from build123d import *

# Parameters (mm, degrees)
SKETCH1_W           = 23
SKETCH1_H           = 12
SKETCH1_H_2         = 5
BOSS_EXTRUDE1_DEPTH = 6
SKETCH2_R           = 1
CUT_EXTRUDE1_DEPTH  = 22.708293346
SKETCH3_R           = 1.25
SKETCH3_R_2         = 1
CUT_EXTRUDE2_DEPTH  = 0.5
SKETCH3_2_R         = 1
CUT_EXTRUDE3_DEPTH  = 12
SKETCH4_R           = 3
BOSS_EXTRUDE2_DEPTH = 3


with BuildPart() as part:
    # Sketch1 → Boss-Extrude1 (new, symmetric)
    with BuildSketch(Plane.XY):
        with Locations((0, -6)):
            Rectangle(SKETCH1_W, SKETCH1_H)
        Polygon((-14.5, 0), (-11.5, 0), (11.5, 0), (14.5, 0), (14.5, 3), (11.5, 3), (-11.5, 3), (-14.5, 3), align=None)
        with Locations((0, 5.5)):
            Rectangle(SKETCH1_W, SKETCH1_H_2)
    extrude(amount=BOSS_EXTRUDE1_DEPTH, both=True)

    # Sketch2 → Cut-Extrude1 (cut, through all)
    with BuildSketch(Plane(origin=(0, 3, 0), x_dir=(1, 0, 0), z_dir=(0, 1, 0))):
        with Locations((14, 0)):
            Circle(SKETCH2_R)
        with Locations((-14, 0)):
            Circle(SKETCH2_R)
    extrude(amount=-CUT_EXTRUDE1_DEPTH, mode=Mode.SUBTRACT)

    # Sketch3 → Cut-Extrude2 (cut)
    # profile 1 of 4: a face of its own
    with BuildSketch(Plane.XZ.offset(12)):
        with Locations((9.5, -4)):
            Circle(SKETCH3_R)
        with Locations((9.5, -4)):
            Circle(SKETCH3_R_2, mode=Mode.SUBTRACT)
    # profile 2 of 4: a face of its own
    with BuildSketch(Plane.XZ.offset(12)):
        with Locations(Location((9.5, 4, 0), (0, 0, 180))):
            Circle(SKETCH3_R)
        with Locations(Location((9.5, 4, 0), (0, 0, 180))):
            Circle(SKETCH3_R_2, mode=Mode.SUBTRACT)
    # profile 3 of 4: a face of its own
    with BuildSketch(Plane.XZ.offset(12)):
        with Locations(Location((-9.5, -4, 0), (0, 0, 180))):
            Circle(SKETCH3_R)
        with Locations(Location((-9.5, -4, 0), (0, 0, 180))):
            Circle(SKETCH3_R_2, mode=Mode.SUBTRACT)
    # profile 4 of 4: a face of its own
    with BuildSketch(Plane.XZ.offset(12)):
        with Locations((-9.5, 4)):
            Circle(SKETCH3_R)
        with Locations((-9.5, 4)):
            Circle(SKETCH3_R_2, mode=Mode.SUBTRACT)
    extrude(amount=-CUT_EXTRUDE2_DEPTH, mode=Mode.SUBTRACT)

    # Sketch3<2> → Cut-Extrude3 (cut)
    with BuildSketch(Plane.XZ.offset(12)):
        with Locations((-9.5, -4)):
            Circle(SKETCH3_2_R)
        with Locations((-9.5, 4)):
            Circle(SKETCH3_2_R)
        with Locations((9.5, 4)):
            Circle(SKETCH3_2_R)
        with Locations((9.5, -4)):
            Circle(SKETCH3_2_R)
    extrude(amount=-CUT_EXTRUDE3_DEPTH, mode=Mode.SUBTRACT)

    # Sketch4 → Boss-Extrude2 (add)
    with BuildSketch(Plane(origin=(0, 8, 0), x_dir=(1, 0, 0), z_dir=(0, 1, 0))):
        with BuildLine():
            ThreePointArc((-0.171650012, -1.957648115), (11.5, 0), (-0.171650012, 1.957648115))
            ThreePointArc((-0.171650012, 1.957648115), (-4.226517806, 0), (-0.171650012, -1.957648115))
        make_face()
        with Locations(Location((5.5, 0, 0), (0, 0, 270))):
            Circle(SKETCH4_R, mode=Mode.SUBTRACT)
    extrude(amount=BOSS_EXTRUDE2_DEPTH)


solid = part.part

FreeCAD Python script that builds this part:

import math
import FreeCAD as App
import Part
import Sketcher

V = App.Vector

doc = App.newDocument("Part")
body = doc.addObject("PartDesign::Body", "Body")

sketch1 = body.newObject("Sketcher::SketchObject", "Sketch")
sketch1.AttachmentSupport = (doc.getObject("XY_Plane"), [""])
sketch1.MapMode = "FlatFace"
sketch1.addGeometry(Part.LineSegment(V(-11.5, 0, 0), V(-11.5, -12, 0)), False)
sketch1.addGeometry(Part.LineSegment(V(-11.5, -12, 0), V(11.5, -12, 0)), False)
sketch1.addGeometry(Part.LineSegment(V(11.5, -12, 0), V(11.5, 0, 0)), False)
sketch1.addGeometry(Part.LineSegment(V(11.5, 0, 0), V(14.5, 0, 0)), False)
sketch1.addGeometry(Part.LineSegment(V(14.5, 0, 0), V(14.5, 3, 0)), False)
sketch1.addGeometry(Part.LineSegment(V(14.5, 3, 0), V(11.5, 3, 0)), False)
sketch1.addGeometry(Part.LineSegment(V(11.5, 3, 0), V(11.5, 8, 0)), False)
sketch1.addGeometry(Part.LineSegment(V(11.5, 8, 0), V(-11.5, 8, 0)), False)
sketch1.addGeometry(Part.LineSegment(V(-11.5, 8, 0), V(-11.5, 3, 0)), False)
sketch1.addGeometry(Part.LineSegment(V(-11.5, 3, 0), V(-14.5, 3, 0)), False)
sketch1.addGeometry(Part.LineSegment(V(-14.5, 3, 0), V(-14.5, 0, 0)), False)
sketch1.addGeometry(Part.LineSegment(V(-14.5, 0, 0), V(-11.5, 0, 0)), False)
sketch1.addConstraint(Sketcher.Constraint("Coincident", 0, 2, 1, 1))
sketch1.addConstraint(Sketcher.Constraint("Coincident", 1, 2, 2, 1))
sketch1.addConstraint(Sketcher.Constraint("Coincident", 2, 2, 3, 1))
sketch1.addConstraint(Sketcher.Constraint("Coincident", 3, 2, 4, 1))
sketch1.addConstraint(Sketcher.Constraint("Coincident", 4, 2, 5, 1))
sketch1.addConstraint(Sketcher.Constraint("Coincident", 5, 2, 6, 1))
sketch1.addConstraint(Sketcher.Constraint("Coincident", 6, 2, 7, 1))
sketch1.addConstraint(Sketcher.Constraint("Coincident", 7, 2, 8, 1))
sketch1.addConstraint(Sketcher.Constraint("Coincident", 8, 2, 9, 1))
sketch1.addConstraint(Sketcher.Constraint("Coincident", 9, 2, 10, 1))
sketch1.addConstraint(Sketcher.Constraint("Coincident", 10, 2, 11, 1))
sketch1.addConstraint(Sketcher.Constraint("Coincident", 11, 2, 0, 1))
sketch1.addConstraint(Sketcher.Constraint("Vertical", 0))
sketch1.addConstraint(Sketcher.Constraint("Horizontal", 1))
sketch1.addConstraint(Sketcher.Constraint("Vertical", 2))
sketch1.addConstraint(Sketcher.Constraint("Horizontal", 3))
sketch1.addConstraint(Sketcher.Constraint("Vertical", 4))
sketch1.addConstraint(Sketcher.Constraint("Horizontal", 5))
sketch1.addConstraint(Sketcher.Constraint("Vertical", 6))
sketch1.addConstraint(Sketcher.Constraint("Horizontal", 7))
sketch1.addConstraint(Sketcher.Constraint("Vertical", 8))
sketch1.addConstraint(Sketcher.Constraint("Horizontal", 9))
sketch1.addConstraint(Sketcher.Constraint("Vertical", 10))
sketch1.addConstraint(Sketcher.Constraint("Horizontal", 11))
sketch1.addConstraint(Sketcher.Constraint("Symmetric", 3, 2, 10, 2, -1, 1))
sketch1.addConstraint(Sketcher.Constraint("Symmetric", 5, 2, 8, 2, -2))
sketch1.addConstraint(Sketcher.Constraint("Symmetric", 2, 2, 11, 2, -2))
sketch1.addConstraint(Sketcher.Constraint("Vertical", 2, 2, 5, 2))
sketch1.addConstraint(Sketcher.Constraint("Equal", 11, 4))
sketch1.addConstraint(Sketcher.Constraint("DistanceX", 1, 1, 1, 2, 23.0))
sketch1.addConstraint(Sketcher.Constraint("DistanceX", 3, 1, 3, 2, 3.0))
sketch1.addConstraint(Sketcher.Constraint("DistanceY", 0, 2, 0, 1, 12.0))
sketch1.addConstraint(Sketcher.Constraint("DistanceY", 6, 1, 6, 2, 5.0))
pad1 = body.newObject("PartDesign::Pad", "Pad")
pad1.Profile = sketch1
pad1.Length = 12
pad1.Midplane = True

sketch2 = body.newObject("Sketcher::SketchObject", "Sketch001")
sketch2.AttachmentSupport = (doc.getObject("XZ_Plane"), [""])
sketch2.MapMode = "FlatFace"
sketch2.AttachmentOffset = App.Placement(V(0, 0, -3), App.Rotation())
sketch2.addGeometry(Part.Circle(V(14, 0, 0), V(0, 0, 1), 1), False)
sketch2.addGeometry(Part.Circle(V(-14, 0, 0), V(0, 0, 1), 1), False)
sketch2.addConstraint(Sketcher.Constraint("Equal", 0, 1))
sketch2.addConstraint(Sketcher.Constraint("Symmetric", 0, 3, 1, 3, -1, 1))
sketch2.addConstraint(Sketcher.Constraint("PointOnObject", 0, 3, -1))
sketch2.addConstraint(Sketcher.Constraint("Diameter", 0, 2.0))
sketch2.addConstraint(Sketcher.Constraint("DistanceX", -1, 1, 0, 3, 14.0))
pocket1 = body.newObject("PartDesign::Pocket", "Pocket")
pocket1.Profile = sketch2
pocket1.Type = "ThroughAll"
pocket1.Reversed = True

sketch3 = body.newObject("Sketcher::SketchObject", "Sketch002")
sketch3.AttachmentSupport = (doc.getObject("XZ_Plane"), [""])
sketch3.MapMode = "FlatFace"
sketch3.AttachmentOffset = App.Placement(V(0, 0, 12), App.Rotation())
sketch3.addGeometry(Part.Circle(V(9.5, -4, 0), V(0, 0, 1), 1.2), False)
sketch3.addGeometry(Part.Circle(V(9.5, -4, 0), V(0, 0, 1), 1), False)
sketch3.addGeometry(Part.Circle(V(9.5, 4, 0), V(0, 0, 1), 1.2), False)
sketch3.addGeometry(Part.Circle(V(9.5, 4, 0), V(0, 0, 1), 1), False)
sketch3.addGeometry(Part.Circle(V(-9.5, -4, 0), V(0, 0, 1), 1.2), False)
sketch3.addGeometry(Part.Circle(V(-9.5, -4, 0), V(0, 0, 1), 1), False)
sketch3.addGeometry(Part.Circle(V(-9.5, 4, 0), V(0, 0, 1), 1.2), False)
sketch3.addGeometry(Part.Circle(V(-9.5, 4, 0), V(0, 0, 1), 1), False)
sketch3.addConstraint(Sketcher.Constraint("Coincident", 1, 3, 0, 3))
sketch3.addConstraint(Sketcher.Constraint("Coincident", 3, 3, 2, 3))
sketch3.addConstraint(Sketcher.Constraint("Coincident", 5, 3, 4, 3))
sketch3.addConstraint(Sketcher.Constraint("Coincident", 7, 3, 6, 3))
sketch3.addConstraint(Sketcher.Constraint("Equal", 0, 2))
sketch3.addConstraint(Sketcher.Constraint("Equal", 1, 3))
sketch3.addConstraint(Sketcher.Constraint("Equal", 2, 4))
sketch3.addConstraint(Sketcher.Constraint("Equal", 3, 5))
sketch3.addConstraint(Sketcher.Constraint("Equal", 4, 6))
sketch3.addConstraint(Sketcher.Constraint("Equal", 5, 7))
sketch3.addConstraint(Sketcher.Constraint("Symmetric", 2, 3, 4, 3, -1, 1))
sketch3.addConstraint(Sketcher.Constraint("Symmetric", 0, 3, 6, 3, -1, 1))
sketch3.addConstraint(Sketcher.Constraint("Symmetric", 0, 3, 4, 3, -2))
sketch3.addConstraint(Sketcher.Constraint("Diameter", 1, 2.0))
sketch3.addConstraint(Sketcher.Constraint("Diameter", 0, 2.5))
sketch3.addConstraint(Sketcher.Constraint("DistanceY", 0, 3, -1, 1, 4.0))
sketch3.addConstraint(Sketcher.Constraint("DistanceX", 4, 3, 0, 3, 19.0))
pocket2 = body.newObject("PartDesign::Pocket", "Pocket001")
pocket2.Profile = sketch3
pocket2.Length = 0.5

sketch4 = body.newObject("Sketcher::SketchObject", "Sketch003")
sketch4.AttachmentSupport = (doc.getObject("XZ_Plane"), [""])
sketch4.MapMode = "FlatFace"
sketch4.AttachmentOffset = App.Placement(V(0, 0, 12), App.Rotation())
sketch4.addGeometry(Part.Circle(V(-9.5, -4, 0), V(0, 0, 1), 1), False)
sketch4.addGeometry(Part.Circle(V(-9.5, 4, 0), V(0, 0, 1), 1), False)
sketch4.addGeometry(Part.Circle(V(9.5, 4, 0), V(0, 0, 1), 1), False)
sketch4.addGeometry(Part.Circle(V(9.5, -4, 0), V(0, 0, 1), 1), False)
sketch4.addConstraint(Sketcher.Constraint("Equal", 0, 1))
sketch4.addConstraint(Sketcher.Constraint("Equal", 1, 2))
sketch4.addConstraint(Sketcher.Constraint("Equal", 2, 3))
sketch4.addConstraint(Sketcher.Constraint("Symmetric", 0, 3, 2, 3, -1, 1))
sketch4.addConstraint(Sketcher.Constraint("Symmetric", 1, 3, 3, 3, -1, 1))
sketch4.addConstraint(Sketcher.Constraint("Symmetric", 1, 3, 2, 3, -2))
sketch4.addConstraint(Sketcher.Constraint("Diameter", 0, 2.0))
sketch4.addConstraint(Sketcher.Constraint("DistanceY", 0, 3, -1, 1, 4.0))
sketch4.addConstraint(Sketcher.Constraint("DistanceX", 1, 3, 2, 3, 19.0))
pocket3 = body.newObject("PartDesign::Pocket", "Pocket002")
pocket3.Profile = sketch4
pocket3.Length = 12

sketch5 = body.newObject("Sketcher::SketchObject", "Sketch004")
sketch5.AttachmentSupport = (doc.getObject("XZ_Plane"), [""])
sketch5.MapMode = "FlatFace"
sketch5.AttachmentOffset = App.Placement(V(0, 0, -8), App.Rotation())
sketch5.addGeometry(Part.ArcOfCircle(Part.Circle(V(5.5, 0, 0), V(0, 0, 1), 6), math.radians(-161), math.radians(161)), False)
sketch5.addGeometry(Part.ArcOfCircle(Part.Circle(V(-1.7, 0, 0), V(0, 0, 1), 2.5), math.radians(52), math.radians(308)), False)
sketch5.addGeometry(Part.Circle(V(5.5, 0, 0), V(0, 0, 1), 3), False)
sketch5.addConstraint(Sketcher.Constraint("Coincident", 0, 1, 1, 2))
sketch5.addConstraint(Sketcher.Constraint("Coincident", 1, 1, 0, 2))
sketch5.addConstraint(Sketcher.Constraint("Coincident", 2, 3, 0, 3))
sketch5.addConstraint(Sketcher.Constraint("Symmetric", 0, 1, 1, 1, -1))
sketch5.addConstraint(Sketcher.Constraint("Diameter", 2, 6.0))
sketch5.addConstraint(Sketcher.Constraint("Radius", 0, 6.0))
sketch5.addConstraint(Sketcher.Constraint("Radius", 1, 2.5))
sketch5.addConstraint(Sketcher.Constraint("DistanceX", -1, 1, 0, 3, 5.5))
sketch5.addConstraint(Sketcher.Constraint("DistanceX", 0, 1, -1, 1, 0.17165))
pad2 = body.newObject("PartDesign::Pad", "Pad001")
pad2.Profile = sketch5
pad2.Length = 3
pad2.Reversed = True

doc.recompute()
